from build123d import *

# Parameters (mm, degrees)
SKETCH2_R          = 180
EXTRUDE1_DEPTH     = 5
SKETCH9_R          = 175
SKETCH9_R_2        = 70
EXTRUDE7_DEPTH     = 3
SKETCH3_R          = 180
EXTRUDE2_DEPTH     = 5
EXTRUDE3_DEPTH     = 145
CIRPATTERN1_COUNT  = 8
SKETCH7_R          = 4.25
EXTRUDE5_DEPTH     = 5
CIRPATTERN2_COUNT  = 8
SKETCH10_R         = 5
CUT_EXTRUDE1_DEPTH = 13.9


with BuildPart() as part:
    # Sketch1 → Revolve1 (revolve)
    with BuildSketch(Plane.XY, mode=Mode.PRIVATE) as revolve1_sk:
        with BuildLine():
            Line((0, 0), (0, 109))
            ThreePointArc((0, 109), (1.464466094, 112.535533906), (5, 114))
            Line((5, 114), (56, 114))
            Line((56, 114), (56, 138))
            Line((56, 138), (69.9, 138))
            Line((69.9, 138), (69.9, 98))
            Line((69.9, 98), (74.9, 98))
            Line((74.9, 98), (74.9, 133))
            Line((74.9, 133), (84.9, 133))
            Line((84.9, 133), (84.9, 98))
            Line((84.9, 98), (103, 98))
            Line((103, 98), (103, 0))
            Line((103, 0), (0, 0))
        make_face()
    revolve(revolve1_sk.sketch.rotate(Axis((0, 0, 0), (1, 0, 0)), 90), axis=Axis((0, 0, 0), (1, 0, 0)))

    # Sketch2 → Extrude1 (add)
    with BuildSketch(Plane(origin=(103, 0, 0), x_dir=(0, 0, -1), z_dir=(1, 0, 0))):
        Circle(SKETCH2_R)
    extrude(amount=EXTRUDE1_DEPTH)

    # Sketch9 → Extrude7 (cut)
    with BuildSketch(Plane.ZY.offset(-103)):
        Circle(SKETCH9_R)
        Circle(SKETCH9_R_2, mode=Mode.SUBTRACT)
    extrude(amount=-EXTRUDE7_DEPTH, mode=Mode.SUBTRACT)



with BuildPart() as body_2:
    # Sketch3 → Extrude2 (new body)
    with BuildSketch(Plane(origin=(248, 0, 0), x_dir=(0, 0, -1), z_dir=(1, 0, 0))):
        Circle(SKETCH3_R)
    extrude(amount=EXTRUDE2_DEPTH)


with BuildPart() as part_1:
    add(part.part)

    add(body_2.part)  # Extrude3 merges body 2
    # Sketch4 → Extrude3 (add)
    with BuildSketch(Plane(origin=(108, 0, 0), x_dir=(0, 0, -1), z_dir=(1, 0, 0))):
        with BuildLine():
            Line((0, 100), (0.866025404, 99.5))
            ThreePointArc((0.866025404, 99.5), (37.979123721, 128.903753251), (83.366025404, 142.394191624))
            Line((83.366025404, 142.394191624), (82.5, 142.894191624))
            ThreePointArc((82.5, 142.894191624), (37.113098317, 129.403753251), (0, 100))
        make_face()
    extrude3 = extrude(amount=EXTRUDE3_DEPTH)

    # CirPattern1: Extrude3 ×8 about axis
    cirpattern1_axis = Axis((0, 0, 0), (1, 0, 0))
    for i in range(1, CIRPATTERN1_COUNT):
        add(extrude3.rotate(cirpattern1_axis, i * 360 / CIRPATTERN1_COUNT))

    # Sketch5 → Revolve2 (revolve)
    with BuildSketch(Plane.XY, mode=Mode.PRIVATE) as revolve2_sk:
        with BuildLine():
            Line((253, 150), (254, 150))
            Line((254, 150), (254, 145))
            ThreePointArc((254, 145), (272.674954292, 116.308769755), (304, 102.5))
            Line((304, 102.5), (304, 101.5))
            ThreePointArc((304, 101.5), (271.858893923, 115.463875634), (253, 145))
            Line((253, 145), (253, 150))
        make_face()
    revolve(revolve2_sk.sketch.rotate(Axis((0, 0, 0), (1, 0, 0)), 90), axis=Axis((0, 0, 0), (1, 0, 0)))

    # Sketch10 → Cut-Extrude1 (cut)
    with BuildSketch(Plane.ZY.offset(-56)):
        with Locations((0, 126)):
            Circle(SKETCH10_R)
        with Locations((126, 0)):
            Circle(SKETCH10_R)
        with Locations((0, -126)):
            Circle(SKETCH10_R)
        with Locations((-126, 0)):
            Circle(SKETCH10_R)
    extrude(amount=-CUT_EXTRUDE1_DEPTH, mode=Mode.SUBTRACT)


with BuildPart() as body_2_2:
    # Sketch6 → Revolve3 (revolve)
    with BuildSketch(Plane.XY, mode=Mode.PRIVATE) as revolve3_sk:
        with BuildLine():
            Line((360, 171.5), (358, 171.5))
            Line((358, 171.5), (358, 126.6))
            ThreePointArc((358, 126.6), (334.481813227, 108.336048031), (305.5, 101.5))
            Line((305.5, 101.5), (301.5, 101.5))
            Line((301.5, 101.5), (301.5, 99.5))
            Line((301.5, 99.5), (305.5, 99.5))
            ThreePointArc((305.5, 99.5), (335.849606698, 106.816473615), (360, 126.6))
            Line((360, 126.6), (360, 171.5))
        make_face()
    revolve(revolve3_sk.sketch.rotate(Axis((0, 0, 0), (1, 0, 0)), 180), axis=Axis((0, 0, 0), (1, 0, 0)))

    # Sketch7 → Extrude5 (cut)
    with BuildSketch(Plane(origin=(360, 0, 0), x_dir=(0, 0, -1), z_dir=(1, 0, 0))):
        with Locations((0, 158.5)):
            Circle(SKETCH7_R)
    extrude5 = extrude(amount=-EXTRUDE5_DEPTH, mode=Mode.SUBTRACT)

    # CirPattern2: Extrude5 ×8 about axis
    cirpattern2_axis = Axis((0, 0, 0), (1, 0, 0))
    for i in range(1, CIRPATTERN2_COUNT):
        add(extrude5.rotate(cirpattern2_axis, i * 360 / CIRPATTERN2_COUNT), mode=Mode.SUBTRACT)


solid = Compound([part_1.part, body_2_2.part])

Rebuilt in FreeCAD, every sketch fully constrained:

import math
import FreeCAD as App
import Part
import Sketcher
Q = App.Units.Quantity

doc = App.newDocument("Part")
params = doc.addObject("Spreadsheet::Sheet", "Params")
for row, (alias, value) in enumerate([
    ("sketch1_radius", "5 mm"),
    ("sketch1_width", "103 mm"),
    ("sketch1_width2", "10 mm"),
    ("sketch1_width3", "5 mm"),
    ("sketch1_width4", "51 mm"),
    ("revolution_angle", "360 deg"),
    ("sketch2_diameter", "360 mm"),
    ("pad1_length", "5 mm"),
    ("sketch3_diameter", "350 mm"),
    ("sketch3_diameter2", "140 mm"),
    ("pocket1_length", "3 mm"),
    ("sketch4_diameter", "360 mm"),
    ("pad2_length", "5 mm"),
    ("sketch5_radius", "125 mm"),
    ("sketch5_length", "1 mm"),
    ("pad3_length", "145 mm"),
    ("sketch6_radius", "60 mm"),
    ("sketch6_width", "1 mm"),
    ("sketch6_height", "5 mm"),
    ("revolution2_angle", "360 deg"),
    ("sketch7_diameter", "10 mm"),
    ("pocket2_length", "13.9 mm"),
    ("sketch8_radius", "70 mm"),
    ("sketch8_width", "2 mm"),
    ("sketch8_width2", "4 mm"),
    ("sketch8_height", "44.9 mm"),
    ("revolution3_angle", "360 deg"),
    ("sketch9_diameter", "8.5 mm"),
    ("pocket3_length", "5 mm"),
], start=1):
    params.set(f"A{row}", alias)
    params.set(f"B{row}", "=" + value)
    params.setAlias(f"B{row}", alias)

body = doc.addObject("PartDesign::Body", "Body")

sketch1 = body.newObject("Sketcher::SketchObject", "Sketch")
sketch1.AttachmentSupport = (doc.getObject("XY_Plane"), [""])
sketch1.MapMode = "FlatFace"
sketch1.addGeometry([
    Part.LineSegment(App.Vector(0, 109, 0), App.Vector(0, 0, 0)),
    Part.LineSegment(App.Vector(0, 0, 0), App.Vector(103, 0, 0)),
    Part.LineSegment(App.Vector(103, 0, 0), App.Vector(103, 98, 0)),
    Part.LineSegment(App.Vector(103, 98, 0), App.Vector(85, 98, 0)),
    Part.LineSegment(App.Vector(85, 98, 0), App.Vector(85, 133, 0)),
    Part.LineSegment(App.Vector(85, 133, 0), App.Vector(75, 133, 0)),
    Part.LineSegment(App.Vector(75, 133, 0), App.Vector(75, 98, 0)),
    Part.LineSegment(App.Vector(75, 98, 0), App.Vector(70, 98, 0)),
    Part.LineSegment(App.Vector(70, 98, 0), App.Vector(70, 138, 0)),
    Part.LineSegment(App.Vector(70, 138, 0), App.Vector(56, 138, 0)),
    Part.LineSegment(App.Vector(56, 138, 0), App.Vector(56, 114, 0)),
    Part.LineSegment(App.Vector(56, 114, 0), App.Vector(5, 114, 0)),
    Part.ArcOfCircle(Part.Circle(App.Vector(5, 109, 0), App.Vector(0, 0, 1), 5), math.radians(90), math.radians(180)),
], False)
sketch1.addConstraint([
    Sketcher.Constraint("Coincident", 0, 2, 1, 1),
    Sketcher.Constraint("Coincident", 1, 2, 2, 1),
    Sketcher.Constraint("Coincident", 2, 2, 3, 1),
    Sketcher.Constraint("Coincident", 3, 2, 4, 1),
    Sketcher.Constraint("Coincident", 4, 2, 5, 1),
    Sketcher.Constraint("Coincident", 5, 2, 6, 1),
    Sketcher.Constraint("Coincident", 6, 2, 7, 1),
    Sketcher.Constraint("Coincident", 7, 2, 8, 1),
    Sketcher.Constraint("Coincident", 8, 2, 9, 1),
    Sketcher.Constraint("Coincident", 9, 2, 10, 1),
    Sketcher.Constraint("Coincident", 10, 2, 11, 1),
    Sketcher.Constraint("Tangent", 11, 2, 12, 1),
    Sketcher.Constraint("Tangent", 12, 2, 0, 1),
    Sketcher.Constraint("Vertical", 0),
    Sketcher.Constraint("Horizontal", 1),
    Sketcher.Constraint("Vertical", 2),
    Sketcher.Constraint("Horizontal", 3),
    Sketcher.Constraint("Vertical", 4),
    Sketcher.Constraint("Horizontal", 5),
    Sketcher.Constraint("Vertical", 6),
    Sketcher.Constraint("Horizontal", 7),
    Sketcher.Constraint("Vertical", 8),
    Sketcher.Constraint("Horizontal", 9),
    Sketcher.Constraint("Vertical", 10),
    Sketcher.Constraint("Horizontal", 11),
    Sketcher.Constraint("Coincident", 0, 2, -1, 1),
    Sketcher.Constraint("Horizontal", 3, 2, 6, 2),
    Sketcher.Constraint("Radius", 12, 5.0),
    Sketcher.Constraint("DistanceX", 1, 1, 1, 2, 103.0),
    Sketcher.Constraint("DistanceX", 5, 2, 5, 1, 10.0),
    Sketcher.Constraint("DistanceX", 7, 2, 7, 1, 5.0),
    Sketcher.Constraint("DistanceX", 11, 2, 11, 1, 51.0),
    Sketcher.Constraint("DistanceY", 0, 2, 0, 1, 109.0),
    Sketcher.Constraint("DistanceY", 2, 1, 2, 2, 98.0),
    Sketcher.Constraint("DistanceY", 4, 1, 4, 2, 35.0),
    Sketcher.Constraint("DistanceY", 8, 1, 8, 2, 40.0),
    Sketcher.Constraint("DistanceX", 3, 2, 3, 1, 18.1),
])
sketch1.setExpression("Constraints[27]", "Params.sketch1_radius")
sketch1.setExpression("Constraints[28]", "Params.sketch1_width")
sketch1.setExpression("Constraints[29]", "Params.sketch1_width2")
sketch1.setExpression("Constraints[30]", "Params.sketch1_width3")
sketch1.setExpression("Constraints[31]", "Params.sketch1_width4")
revolution = body.newObject("PartDesign::Revolution", "Revolution")
revolution.Profile = sketch1
revolution.ReferenceAxis = (sketch1, ["H_Axis"])
revolution.setExpression("Angle", "Params.revolution_angle")

sketch2 = body.newObject("Sketcher::SketchObject", "Sketch001")
sketch2.AttachmentSupport = (doc.getObject("YZ_Plane"), [""])
sketch2.MapMode = "FlatFace"
sketch2.AttachmentOffset = App.Placement(App.Vector(0, 0, 103), App.Rotation())
sketch2.addGeometry(Part.Circle(App.Vector(0, 0, 0), App.Vector(0, 0, 1), 180), False)
sketch2.addConstraint([
    Sketcher.Constraint("Coincident", 0, 3, -1, 1),
    Sketcher.Constraint("Diameter", 0, 360.0),
])
sketch2.setExpression("Constraints[1]", "Params.sketch2_diameter")
pad1 = body.newObject("PartDesign::Pad", "Pad")
pad1.Profile = sketch2
pad1.setExpression("Length", "Params.pad1_length")

sketch3 = body.newObject("Sketcher::SketchObject", "Sketch002")
sketch3.AttachmentSupport = (doc.getObject("YZ_Plane"), [""])
sketch3.MapMode = "FlatFace"
sketch3.AttachmentOffset = App.Placement(App.Vector(0, 0, 103), App.Rotation())
sketch3.addGeometry([
    Part.Circle(App.Vector(0, 0, 0), App.Vector(0, 0, 1), 175),
    Part.Circle(App.Vector(0, 0, 0), App.Vector(0, 0, 1), 70),
], False)
sketch3.addConstraint([
    Sketcher.Constraint("Coincident", 0, 3, -1, 1),
    Sketcher.Constraint("Coincident", 1, 3, -1, 1),
    Sketcher.Constraint("Diameter", 0, 350.0),
    Sketcher.Constraint("Diameter", 1, 140.0),
])
sketch3.setExpression("Constraints[2]", "Params.sketch3_diameter")
sketch3.setExpression("Constraints[3]", "Params.sketch3_diameter2")
pocket1 = body.newObject("PartDesign::Pocket", "Pocket")
pocket1.Profile = sketch3
pocket1.setExpression("Length", "Params.pocket1_length")
pocket1.Reversed = True
body2 = doc.addObject("PartDesign::Body", "Body001")

sketch4 = body2.newObject("Sketcher::SketchObject", "Sketch003")
sketch4.AttachmentSupport = (doc.getObject("YZ_Plane001"), [""])
sketch4.MapMode = "FlatFace"
sketch4.AttachmentOffset = App.Placement(App.Vector(0, 0, 248), App.Rotation())
sketch4.addGeometry(Part.Circle(App.Vector(0, 0, 0), App.Vector(0, 0, 1), 180), False)
sketch4.addConstraint([
    Sketcher.Constraint("Coincident", 0, 3, -1, 1),
    Sketcher.Constraint("Diameter", 0, 360.0),
])
sketch4.setExpression("Constraints[1]", "Params.sketch4_diameter")
pad2 = body2.newObject("PartDesign::Pad", "Pad001")
pad2.Profile = sketch4
pad2.setExpression("Length", "Params.pad2_length")
body.AllowCompound = True
doc.recompute()

boolean = body.newObject("PartDesign::Boolean", "Boolean")
boolean.Type = "Fuse"
boolean.addObjects([body2])

sketch5 = body.newObject("Sketcher::SketchObject", "Sketch004")
sketch5.AttachmentSupport = (doc.getObject("YZ_Plane"), [""])
sketch5.MapMode = "FlatFace"
sketch5.AttachmentOffset = App.Placement(App.Vector(0, 0, 108), App.Rotation())
sketch5.addGeometry([
    Part.LineSegment(App.Vector(100, 0, 0), App.Vector(99.5, -0.9, 0)),
    Part.ArcOfCircle(Part.Circle(App.Vector(18, -95.6, 0), App.Vector(0, 0, 1), 125), math.radians(6), math.radians(49)),
    Part.LineSegment(App.Vector(142.4, -83.4, 0), App.Vector(142.9, -82.5, 0)),
    Part.ArcOfCircle(Part.Circle(App.Vector(18.5, -94.8, 0), App.Vector(0, 0, 1), 125), math.radians(6), math.radians(49)),
], False)
sketch5.addConstraint([
    Sketcher.Constraint("Coincident", 0, 2, 1, 2),
    Sketcher.Constraint("Coincident", 1, 1, 2, 1),
    Sketcher.Constraint("Coincident", 2, 2, 3, 1),
    Sketcher.Constraint("Coincident", 3, 2, 0, 1),
    Sketcher.Constraint("Equal", 1, 3),
    Sketcher.Constraint("PointOnObject", 3, 2, -1),
    Sketcher.Constraint("Parallel", 0, 2),
    Sketcher.Constraint("Equal", 0, 2),
    Sketcher.Constraint("Radius", 1, 125.0),
    Sketcher.Constraint("Angle", 0, Q("-120 deg")),
    Sketcher.Constraint("Distance", 0, 1.0),
    Sketcher.Constraint("DistanceX", -1, 1, 3, 2, 100.0),
    Sketcher.Constraint("DistanceY", 2, 2, -1, 1, 82.5),
    Sketcher.Constraint("DistanceY", 1, 3, -1, 1, 95.642069),
])
sketch5.setExpression("Constraints[8]", "Params.sketch5_radius")
sketch5.setExpression("Constraints[10]", "Params.sketch5_length")
pad3 = body.newObject("PartDesign::Pad", "Pad002")
pad3.Profile = sketch5
pad3.setExpression("Length", "Params.pad3_length")
doc.recompute()

polarpattern = body.newObject("PartDesign::PolarPattern", "PolarPattern")
polarpattern.Originals = [pad3]
polarpattern.Axis = (doc.getObject("X_Axis"), [""])
polarpattern.Angle = 360
polarpattern.Occurrences = 8
body.Tip = polarpattern

sketch6 = body.newObject("Sketcher::SketchObject", "Sketch005")
sketch6.AttachmentSupport = (doc.getObject("XY_Plane"), [""])
sketch6.MapMode = "FlatFace"
sketch6.addGeometry([
    Part.LineSegment(App.Vector(254, 150, 0), App.Vector(253, 150, 0)),
    Part.LineSegment(App.Vector(253, 150, 0), App.Vector(253, 145, 0)),
    Part.ArcOfCircle(Part.Circle(App.Vector(310.8, 161.1, 0), App.Vector(0, 0, 1), 60), math.radians(-164), math.radians(-97)),
    Part.LineSegment(App.Vector(304, 101.5, 0), App.Vector(304, 102.5, 0)),
    Part.ArcOfCircle(Part.Circle(App.Vector(311.5, 162, 0), App.Vector(0, 0, 1), 60), math.radians(-164), math.radians(-97)),
    Part.LineSegment(App.Vector(254, 145, 0), App.Vector(254, 150, 0)),
], False)
sketch6.addConstraint([
    Sketcher.Constraint("Coincident", 0, 2, 1, 1),
    Sketcher.Constraint("Coincident", 1, 2, 2, 1),
    Sketcher.Constraint("Coincident", 2, 2, 3, 1),
    Sketcher.Constraint("Coincident", 3, 2, 4, 2),
    Sketcher.Constraint("Coincident", 4, 1, 5, 1),
    Sketcher.Constraint("Coincident", 5, 2, 0, 1),
    Sketcher.Constraint("Horizontal", 0),
    Sketcher.Constraint("Vertical", 1),
    Sketcher.Constraint("Vertical", 3),
    Sketcher.Constraint("Vertical", 5),
    Sketcher.Constraint("Equal", 2, 4),
    Sketcher.Constraint("Horizontal", 1, 2, 4, 1),
    Sketcher.Constraint("Equal", 0, 3),
    Sketcher.Constraint("Radius", 2, 60.0),
    Sketcher.Constraint("DistanceX", 0, 2, 0, 1, 1.0),
    Sketcher.Constraint("DistanceY", 1, 2, 1, 1, 5.0),
    Sketcher.Constraint("DistanceX", -1, 1, 0, 2, 253.0),
    Sketcher.Constraint("DistanceY", -1, 1, 0, 2, 150.0),
    Sketcher.Constraint("DistanceX", -1, 1, 2, 2, 304.0),
    Sketcher.Constraint("DistanceY", -1, 1, 2, 2, 101.5),
])
sketch6.setExpression("Constraints[13]", "Params.sketch6_radius")
sketch6.setExpression("Constraints[14]", "Params.sketch6_width")
sketch6.setExpression("Constraints[15]", "Params.sketch6_height")
revolution2 = body.newObject("PartDesign::Revolution", "Revolution001")
revolution2.Profile = sketch6
revolution2.ReferenceAxis = (sketch6, ["H_Axis"])
revolution2.setExpression("Angle", "Params.revolution2_angle")

sketch7 = body.newObject("Sketcher::SketchObject", "Sketch006")
sketch7.AttachmentSupport = (doc.getObject("YZ_Plane"), [""])
sketch7.MapMode = "FlatFace"
sketch7.AttachmentOffset = App.Placement(App.Vector(0, 0, 56), App.Rotation())
sketch7.addGeometry([
    Part.Circle(App.Vector(126, 0, 0), App.Vector(0, 0, 1), 5),
    Part.Circle(App.Vector(0, 126, 0), App.Vector(0, 0, 1), 5),
    Part.Circle(App.Vector(-126, 0, 0), App.Vector(0, 0, 1), 5),
    Part.Circle(App.Vector(0, -126, 0), App.Vector(0, 0, 1), 5),
], False)
sketch7.addConstraint([
    Sketcher.Constraint("Equal", 0, 1),
    Sketcher.Constraint("Equal", 1, 2),
    Sketcher.Constraint("Equal", 2, 3),
    Sketcher.Constraint("Symmetric", 0, 3, 2, 3, -1, 1),
    Sketcher.Constraint("Symmetric", 1, 3, 3, 3, -1, 1),
    Sketcher.Constraint("PointOnObject", 0, 3, -1),
    Sketcher.Constraint("PointOnObject", 1, 3, -2),
    Sketcher.Constraint("Diameter", 0, 10.0),
    Sketcher.Constraint("DistanceX", -1, 1, 0, 3, 126.0),
    Sketcher.Constraint("DistanceY", -1, 1, 1, 3, 126.0),
])
sketch7.setExpression("Constraints[7]", "Params.sketch7_diameter")
pocket2 = body.newObject("PartDesign::Pocket", "Pocket001")
pocket2.Profile = sketch7
pocket2.setExpression("Length", "Params.pocket2_length")
pocket2.Reversed = True
body3 = doc.addObject("PartDesign::Body", "Body002")

sketch8 = body3.newObject("Sketcher::SketchObject", "Sketch007")
sketch8.AttachmentSupport = (doc.getObject("XY_Plane002"), [""])
sketch8.MapMode = "FlatFace"
sketch8.addGeometry([
    Part.LineSegment(App.Vector(360, 171.5, 0), App.Vector(358, 171.5, 0)),
    Part.LineSegment(App.Vector(358, 171.5, 0), App.Vector(358, 126.6, 0)),
    Part.ArcOfCircle(Part.Circle(App.Vector(304.3, 171.5, 0), App.Vector(0, 0, 1), 70), math.radians(-89), math.radians(-40)),
    Part.LineSegment(App.Vector(305.5, 101.5, 0), App.Vector(301.5, 101.5, 0)),
    Part.LineSegment(App.Vector(301.5, 101.5, 0), App.Vector(301.5, 99.5, 0)),
    Part.LineSegment(App.Vector(301.5, 99.5, 0), App.Vector(305.5, 99.5, 0)),
    Part.ArcOfCircle(Part.Circle(App.Vector(304.7, 169.5, 0), App.Vector(0, 0, 1), 70), math.radians(-89), math.radians(-38)),
    Part.LineSegment(App.Vector(360, 126.6, 0), App.Vector(360, 171.5, 0)),
], False)
sketch8.addConstraint([
    Sketcher.Constraint("Coincident", 0, 2, 1, 1),
    Sketcher.Constraint("Coincident", 1, 2, 2, 2),
    Sketcher.Constraint("Coincident", 2, 1, 3, 1),
    Sketcher.Constraint("Coincident", 3, 2, 4, 1),
    Sketcher.Constraint("Coincident", 4, 2, 5, 1),
    Sketcher.Constraint("Coincident", 5, 2, 6, 1),
    Sketcher.Constraint("Coincident", 6, 2, 7, 1),
    Sketcher.Constraint("Coincident", 7, 2, 0, 1),
    Sketcher.Constraint("Horizontal", 0),
    Sketcher.Constraint("Vertical", 1),
    Sketcher.Constraint("Horizontal", 3),
    Sketcher.Constraint("Vertical", 4),
    Sketcher.Constraint("Horizontal", 5),
    Sketcher.Constraint("Vertical", 7),
    Sketcher.Constraint("Equal", 2, 6),
    Sketcher.Constraint("Horizontal", 1, 2, 6, 2),
    Sketcher.Constraint("Vertical", 2, 1, 5, 2),
    Sketcher.Constraint("Equal", 0, 4),
    Sketcher.Constraint("Radius", 2, 70.0),
    Sketcher.Constraint("DistanceX", 0, 2, 0, 1, 2.0),
    Sketcher.Constraint("DistanceX", 3, 2, 3, 1, 4.0),
    Sketcher.Constraint("DistanceY", 1, 2, 1, 1, 44.9),
    Sketcher.Constraint("DistanceX", -1, 1, 0, 2, 358.0),
    Sketcher.Constraint("DistanceY", 2, 1, 0, 2, 70.0),
    Sketcher.Constraint("DistanceY", -1, 1, 0, 2, 171.5),
    Sketcher.Constraint("DistanceX", -1, 1, 2, 1, 305.5),
])
sketch8.setExpression("Constraints[18]", "Params.sketch8_radius")
sketch8.setExpression("Constraints[19]", "Params.sketch8_width")
sketch8.setExpression("Constraints[20]", "Params.sketch8_width2")
sketch8.setExpression("Constraints[21]", "Params.sketch8_height")
revolution3 = body3.newObject("PartDesign::Revolution", "Revolution002")
revolution3.Profile = sketch8
revolution3.ReferenceAxis = (sketch8, ["H_Axis"])
revolution3.setExpression("Angle", "Params.revolution3_angle")

sketch9 = body3.newObject("Sketcher::SketchObject", "Sketch008")
sketch9.AttachmentSupport = (doc.getObject("YZ_Plane002"), [""])
sketch9.MapMode = "FlatFace"
sketch9.AttachmentOffset = App.Placement(App.Vector(0, 0, 360), App.Rotation())
sketch9.addGeometry(Part.Circle(App.Vector(158.5, 0, 0), App.Vector(0, 0, 1), 4.2), False)
sketch9.addConstraint([
    Sketcher.Constraint("PointOnObject", 0, 3, -1),
    Sketcher.Constraint("Diameter", 0, 8.5),
    Sketcher.Constraint("DistanceX", -1, 1, 0, 3, 158.5),
])
sketch9.setExpression("Constraints[1]", "Params.sketch9_diameter")
pocket3 = body3.newObject("PartDesign::Pocket", "Pocket002")
pocket3.Profile = sketch9
pocket3.setExpression("Length", "Params.pocket3_length")
doc.recompute()

polarpattern2 = body3.newObject("PartDesign::PolarPattern", "PolarPattern001")
polarpattern2.Originals = [pocket3]
polarpattern2.Axis = (doc.getObject("X_Axis002"), [""])
polarpattern2.Angle = 360
polarpattern2.Occurrences = 8
body3.Tip = polarpattern2

doc.recompute()
